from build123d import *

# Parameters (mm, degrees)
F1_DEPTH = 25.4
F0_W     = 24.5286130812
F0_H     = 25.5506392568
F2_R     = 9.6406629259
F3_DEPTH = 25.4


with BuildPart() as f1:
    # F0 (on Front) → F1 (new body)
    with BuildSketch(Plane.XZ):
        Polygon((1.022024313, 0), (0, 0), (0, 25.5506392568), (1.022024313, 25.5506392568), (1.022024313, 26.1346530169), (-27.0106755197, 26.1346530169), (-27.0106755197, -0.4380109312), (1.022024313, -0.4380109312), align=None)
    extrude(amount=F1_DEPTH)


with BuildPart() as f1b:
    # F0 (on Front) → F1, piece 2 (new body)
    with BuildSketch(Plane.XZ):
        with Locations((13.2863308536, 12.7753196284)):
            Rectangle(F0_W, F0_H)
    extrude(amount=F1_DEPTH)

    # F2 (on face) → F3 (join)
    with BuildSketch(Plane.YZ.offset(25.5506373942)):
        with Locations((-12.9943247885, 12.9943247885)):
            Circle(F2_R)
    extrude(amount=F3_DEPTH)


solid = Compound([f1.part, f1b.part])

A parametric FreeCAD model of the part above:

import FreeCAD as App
import Part
import Sketcher
Q = App.Units.Quantity


def add_polygon(sketch, points):
    """Adds a closed chain of lines whose ends are joined by coincident constraints."""
    first, n = sketch.GeometryCount, len(points)
    for a, b in zip(points, points[1:] + points[:1]):
        sketch.addGeometry(Part.LineSegment(App.Vector(*a, 0), App.Vector(*b, 0)), False)
    for i in range(n):
        sketch.addConstraint(Sketcher.Constraint("Coincident", first + i, 2, first + (i + 1) % n, 1))

doc = App.newDocument("Part")
body = doc.addObject("PartDesign::Body", "Body")

sketch1 = body.newObject("Sketcher::SketchObject", "Sketch")
sketch1.AttachmentSupport = (doc.getObject("XZ_Plane"), [""])
sketch1.MapMode = "FlatFace"
add_polygon(sketch1, [(1.022024, 0), (0, 0), (0, 25.550639), (1.022024, 25.550639), (1.022024, 26.134653), (-27.010676, 26.134653), (-27.010676, -0.438011), (1.022024, -0.438011)])
sketch1.addConstraint(Sketcher.Constraint("Horizontal", 0))
sketch1.addConstraint(Sketcher.Constraint("Vertical", 1))
sketch1.addConstraint(Sketcher.Constraint("Horizontal", 2))
sketch1.addConstraint(Sketcher.Constraint("Vertical", 3))
sketch1.addConstraint(Sketcher.Constraint("Horizontal", 4))
sketch1.addConstraint(Sketcher.Constraint("Vertical", 5))
sketch1.addConstraint(Sketcher.Constraint("Horizontal", 6))
sketch1.addConstraint(Sketcher.Constraint("Vertical", 7))
sketch1.addConstraint(Sketcher.Constraint("Coincident", 0, 2, -1, 1))
sketch1.addConstraint(Sketcher.Constraint("Vertical", 3, 2, 6, 2))
sketch1.addConstraint(Sketcher.Constraint("DistanceX", 4, 2, 4, 1, 28.0327))
sketch1.addConstraint(Sketcher.Constraint("DistanceY", 1, 1, 1, 2, 25.550639))
sketch1.addConstraint(Sketcher.Constraint("DistanceY", 7, 1, 7, 2, 0.438011))
sketch1.addConstraint(Sketcher.Constraint("DistanceX", 0, 2, 0, 1, 1.022024))
sketch1.addConstraint(Sketcher.Constraint("DistanceY", 3, 1, 3, 2, 0.584014))
pad1 = body.newObject("PartDesign::Pad", "Pad")
pad1.Profile = sketch1
pad1.Length = Q("1 in")
body2 = doc.addObject("PartDesign::Body", "Body001")

sketch2 = body2.newObject("Sketcher::SketchObject", "Sketch001")
sketch2.AttachmentSupport = (doc.getObject("XZ_Plane001"), [""])
sketch2.MapMode = "FlatFace"
add_polygon(sketch2, [(1.022024, 25.550639), (1.022024, 0), (25.550637, 0), (25.550637, 25.550639)])
sketch2.addConstraint(Sketcher.Constraint("Vertical", 0))
sketch2.addConstraint(Sketcher.Constraint("Horizontal", 1))
sketch2.addConstraint(Sketcher.Constraint("Vertical", 2))
sketch2.addConstraint(Sketcher.Constraint("Horizontal", 3))
sketch2.addConstraint(Sketcher.Constraint("PointOnObject", 0, 2, -1))
sketch2.addConstraint(Sketcher.Constraint("DistanceY", 0, 2, 0, 1, 25.550639))
sketch2.addConstraint(Sketcher.Constraint("DistanceX", 1, 1, 1, 2, 24.528613))
sketch2.addConstraint(Sketcher.Constraint("DistanceX", -1, 1, 0, 2, 1.022024))
pad2 = body2.newObject("PartDesign::Pad", "Pad001")
pad2.Profile = sketch2
pad2.Length = Q("1 in")

sketch3 = body2.newObject("Sketcher::SketchObject", "Sketch002")
sketch3.AttachmentSupport = (doc.getObject("YZ_Plane001"), [""])
sketch3.MapMode = "FlatFace"
sketch3.AttachmentOffset = App.Placement(App.Vector(0, 0, 25.550637), App.Rotation())
sketch3.addGeometry(Part.Circle(App.Vector(-12.994325, 12.994325, 0), App.Vector(0, 0, 1), 9.640663), False)
sketch3.addConstraint(Sketcher.Constraint("Diameter", 0, 19.281326))
sketch3.addConstraint(Sketcher.Constraint("DistanceX", 0, 3, -1, 1, 12.994325))
sketch3.addConstraint(Sketcher.Constraint("DistanceY", -1, 1, 0, 3, 12.994325))
pad3 = body2.newObject("PartDesign::Pad", "Pad002")
pad3.Profile = sketch3
pad3.Length = Q("1 in")

doc.recompute()
